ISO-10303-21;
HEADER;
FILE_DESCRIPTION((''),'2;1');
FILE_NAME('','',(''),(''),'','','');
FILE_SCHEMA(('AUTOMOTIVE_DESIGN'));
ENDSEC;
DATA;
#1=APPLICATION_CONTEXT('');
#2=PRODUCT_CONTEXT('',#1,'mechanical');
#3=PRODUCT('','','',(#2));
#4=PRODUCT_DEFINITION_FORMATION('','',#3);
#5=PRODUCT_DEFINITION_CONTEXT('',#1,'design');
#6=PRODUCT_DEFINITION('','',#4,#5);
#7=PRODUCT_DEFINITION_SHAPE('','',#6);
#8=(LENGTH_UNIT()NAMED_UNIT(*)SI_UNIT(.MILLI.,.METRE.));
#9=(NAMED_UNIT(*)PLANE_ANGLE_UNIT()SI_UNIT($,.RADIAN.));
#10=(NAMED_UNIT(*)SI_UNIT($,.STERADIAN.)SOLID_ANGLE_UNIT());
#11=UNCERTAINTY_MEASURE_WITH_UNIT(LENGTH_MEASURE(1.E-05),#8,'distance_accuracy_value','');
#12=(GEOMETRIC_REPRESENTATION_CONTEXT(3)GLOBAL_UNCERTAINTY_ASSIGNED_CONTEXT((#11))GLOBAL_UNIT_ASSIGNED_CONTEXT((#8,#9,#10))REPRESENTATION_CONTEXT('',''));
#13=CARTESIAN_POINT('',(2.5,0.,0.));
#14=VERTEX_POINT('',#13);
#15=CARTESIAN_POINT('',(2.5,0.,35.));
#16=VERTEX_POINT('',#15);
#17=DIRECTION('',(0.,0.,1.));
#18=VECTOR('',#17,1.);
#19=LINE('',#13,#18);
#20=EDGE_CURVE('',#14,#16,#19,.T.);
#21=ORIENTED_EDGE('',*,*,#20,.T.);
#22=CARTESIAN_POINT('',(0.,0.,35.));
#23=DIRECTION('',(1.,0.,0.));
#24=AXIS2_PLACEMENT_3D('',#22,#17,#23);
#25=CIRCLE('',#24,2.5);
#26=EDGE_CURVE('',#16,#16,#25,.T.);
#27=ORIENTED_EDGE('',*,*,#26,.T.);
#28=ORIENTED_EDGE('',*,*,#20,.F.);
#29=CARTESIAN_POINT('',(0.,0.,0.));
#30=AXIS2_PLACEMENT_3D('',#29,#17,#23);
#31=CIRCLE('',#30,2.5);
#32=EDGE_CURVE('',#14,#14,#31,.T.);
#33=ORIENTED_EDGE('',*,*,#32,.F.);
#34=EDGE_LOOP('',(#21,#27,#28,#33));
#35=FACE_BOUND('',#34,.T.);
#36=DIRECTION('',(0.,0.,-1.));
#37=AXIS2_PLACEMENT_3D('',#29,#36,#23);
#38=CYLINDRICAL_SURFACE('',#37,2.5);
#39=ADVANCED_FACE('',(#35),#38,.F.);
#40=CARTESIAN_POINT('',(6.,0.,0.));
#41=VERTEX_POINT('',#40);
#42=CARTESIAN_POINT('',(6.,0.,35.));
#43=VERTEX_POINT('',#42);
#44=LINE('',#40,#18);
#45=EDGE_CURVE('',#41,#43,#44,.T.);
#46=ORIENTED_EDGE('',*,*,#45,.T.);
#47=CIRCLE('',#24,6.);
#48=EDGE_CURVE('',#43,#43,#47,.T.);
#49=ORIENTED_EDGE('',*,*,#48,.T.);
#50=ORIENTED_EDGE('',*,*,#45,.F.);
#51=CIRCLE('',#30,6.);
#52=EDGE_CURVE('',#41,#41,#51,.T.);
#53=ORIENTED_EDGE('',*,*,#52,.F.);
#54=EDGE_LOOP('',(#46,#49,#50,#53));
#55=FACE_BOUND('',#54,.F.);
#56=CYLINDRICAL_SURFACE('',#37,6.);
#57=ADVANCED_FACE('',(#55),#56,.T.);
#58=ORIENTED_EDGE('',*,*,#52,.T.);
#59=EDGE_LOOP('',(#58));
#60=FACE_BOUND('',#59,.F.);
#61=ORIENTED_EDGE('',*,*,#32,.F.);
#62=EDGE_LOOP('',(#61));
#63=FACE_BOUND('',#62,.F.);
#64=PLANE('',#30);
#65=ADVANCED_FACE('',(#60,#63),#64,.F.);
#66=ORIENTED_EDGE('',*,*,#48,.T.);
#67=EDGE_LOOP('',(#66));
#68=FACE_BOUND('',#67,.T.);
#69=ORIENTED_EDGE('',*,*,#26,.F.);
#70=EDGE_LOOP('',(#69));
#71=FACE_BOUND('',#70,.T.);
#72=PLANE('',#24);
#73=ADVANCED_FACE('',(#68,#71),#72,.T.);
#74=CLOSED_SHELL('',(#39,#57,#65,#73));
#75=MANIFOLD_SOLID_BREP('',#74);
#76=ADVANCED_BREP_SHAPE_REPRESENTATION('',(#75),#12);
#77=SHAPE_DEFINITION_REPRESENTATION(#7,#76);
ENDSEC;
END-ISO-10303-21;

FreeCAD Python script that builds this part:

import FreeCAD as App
import Part
import Sketcher
from FreeCAD import Vector

doc = App.newDocument("Part")
params = doc.addObject("Spreadsheet::Sheet", "Params")
for row, (alias, value) in enumerate([
    ("sketch1_diameter", "12 mm"),
    ("sketch1_diameter2", "5 mm"),
    ("pad1_length", "35 mm"),
], start=1):
    params.set(f"A{row}", alias)
    params.set(f"B{row}", "=" + value)
    params.setAlias(f"B{row}", alias)

body = doc.addObject("PartDesign::Body", "Body")

# Sketch on XY plane
sketch1 = doc.addObject("Sketcher::SketchObject", "Sketch")
body.addObject(sketch1)
sketch1.AttachmentSupport = (doc.XY_Plane, [""])
sketch1.MapMode = "FlatFace"
sketch1.addGeometry([
    Part.Circle(Vector(0, 0, 0), Vector(0, 0, 1), 6),
    Part.Circle(Vector(0, 0, 0), Vector(0, 0, 1), 2.5),
], False)
sketch1.addConstraint([
    Sketcher.Constraint("Coincident", 0, 3, -1, 1),
    Sketcher.Constraint("Coincident", 1, 3, -1, 1),
    Sketcher.Constraint("Diameter", 0, 12.0),
    Sketcher.Constraint("Diameter", 1, 5.0),
])
sketch1.setExpression("Constraints[2]", "Params.sketch1_diameter")
sketch1.setExpression("Constraints[3]", "Params.sketch1_diameter2")
pad1 = doc.addObject("PartDesign::Pad", "Pad")
body.addObject(pad1)
pad1.Profile = sketch1
pad1.setExpression("Length", "Params.pad1_length")

doc.recompute()
